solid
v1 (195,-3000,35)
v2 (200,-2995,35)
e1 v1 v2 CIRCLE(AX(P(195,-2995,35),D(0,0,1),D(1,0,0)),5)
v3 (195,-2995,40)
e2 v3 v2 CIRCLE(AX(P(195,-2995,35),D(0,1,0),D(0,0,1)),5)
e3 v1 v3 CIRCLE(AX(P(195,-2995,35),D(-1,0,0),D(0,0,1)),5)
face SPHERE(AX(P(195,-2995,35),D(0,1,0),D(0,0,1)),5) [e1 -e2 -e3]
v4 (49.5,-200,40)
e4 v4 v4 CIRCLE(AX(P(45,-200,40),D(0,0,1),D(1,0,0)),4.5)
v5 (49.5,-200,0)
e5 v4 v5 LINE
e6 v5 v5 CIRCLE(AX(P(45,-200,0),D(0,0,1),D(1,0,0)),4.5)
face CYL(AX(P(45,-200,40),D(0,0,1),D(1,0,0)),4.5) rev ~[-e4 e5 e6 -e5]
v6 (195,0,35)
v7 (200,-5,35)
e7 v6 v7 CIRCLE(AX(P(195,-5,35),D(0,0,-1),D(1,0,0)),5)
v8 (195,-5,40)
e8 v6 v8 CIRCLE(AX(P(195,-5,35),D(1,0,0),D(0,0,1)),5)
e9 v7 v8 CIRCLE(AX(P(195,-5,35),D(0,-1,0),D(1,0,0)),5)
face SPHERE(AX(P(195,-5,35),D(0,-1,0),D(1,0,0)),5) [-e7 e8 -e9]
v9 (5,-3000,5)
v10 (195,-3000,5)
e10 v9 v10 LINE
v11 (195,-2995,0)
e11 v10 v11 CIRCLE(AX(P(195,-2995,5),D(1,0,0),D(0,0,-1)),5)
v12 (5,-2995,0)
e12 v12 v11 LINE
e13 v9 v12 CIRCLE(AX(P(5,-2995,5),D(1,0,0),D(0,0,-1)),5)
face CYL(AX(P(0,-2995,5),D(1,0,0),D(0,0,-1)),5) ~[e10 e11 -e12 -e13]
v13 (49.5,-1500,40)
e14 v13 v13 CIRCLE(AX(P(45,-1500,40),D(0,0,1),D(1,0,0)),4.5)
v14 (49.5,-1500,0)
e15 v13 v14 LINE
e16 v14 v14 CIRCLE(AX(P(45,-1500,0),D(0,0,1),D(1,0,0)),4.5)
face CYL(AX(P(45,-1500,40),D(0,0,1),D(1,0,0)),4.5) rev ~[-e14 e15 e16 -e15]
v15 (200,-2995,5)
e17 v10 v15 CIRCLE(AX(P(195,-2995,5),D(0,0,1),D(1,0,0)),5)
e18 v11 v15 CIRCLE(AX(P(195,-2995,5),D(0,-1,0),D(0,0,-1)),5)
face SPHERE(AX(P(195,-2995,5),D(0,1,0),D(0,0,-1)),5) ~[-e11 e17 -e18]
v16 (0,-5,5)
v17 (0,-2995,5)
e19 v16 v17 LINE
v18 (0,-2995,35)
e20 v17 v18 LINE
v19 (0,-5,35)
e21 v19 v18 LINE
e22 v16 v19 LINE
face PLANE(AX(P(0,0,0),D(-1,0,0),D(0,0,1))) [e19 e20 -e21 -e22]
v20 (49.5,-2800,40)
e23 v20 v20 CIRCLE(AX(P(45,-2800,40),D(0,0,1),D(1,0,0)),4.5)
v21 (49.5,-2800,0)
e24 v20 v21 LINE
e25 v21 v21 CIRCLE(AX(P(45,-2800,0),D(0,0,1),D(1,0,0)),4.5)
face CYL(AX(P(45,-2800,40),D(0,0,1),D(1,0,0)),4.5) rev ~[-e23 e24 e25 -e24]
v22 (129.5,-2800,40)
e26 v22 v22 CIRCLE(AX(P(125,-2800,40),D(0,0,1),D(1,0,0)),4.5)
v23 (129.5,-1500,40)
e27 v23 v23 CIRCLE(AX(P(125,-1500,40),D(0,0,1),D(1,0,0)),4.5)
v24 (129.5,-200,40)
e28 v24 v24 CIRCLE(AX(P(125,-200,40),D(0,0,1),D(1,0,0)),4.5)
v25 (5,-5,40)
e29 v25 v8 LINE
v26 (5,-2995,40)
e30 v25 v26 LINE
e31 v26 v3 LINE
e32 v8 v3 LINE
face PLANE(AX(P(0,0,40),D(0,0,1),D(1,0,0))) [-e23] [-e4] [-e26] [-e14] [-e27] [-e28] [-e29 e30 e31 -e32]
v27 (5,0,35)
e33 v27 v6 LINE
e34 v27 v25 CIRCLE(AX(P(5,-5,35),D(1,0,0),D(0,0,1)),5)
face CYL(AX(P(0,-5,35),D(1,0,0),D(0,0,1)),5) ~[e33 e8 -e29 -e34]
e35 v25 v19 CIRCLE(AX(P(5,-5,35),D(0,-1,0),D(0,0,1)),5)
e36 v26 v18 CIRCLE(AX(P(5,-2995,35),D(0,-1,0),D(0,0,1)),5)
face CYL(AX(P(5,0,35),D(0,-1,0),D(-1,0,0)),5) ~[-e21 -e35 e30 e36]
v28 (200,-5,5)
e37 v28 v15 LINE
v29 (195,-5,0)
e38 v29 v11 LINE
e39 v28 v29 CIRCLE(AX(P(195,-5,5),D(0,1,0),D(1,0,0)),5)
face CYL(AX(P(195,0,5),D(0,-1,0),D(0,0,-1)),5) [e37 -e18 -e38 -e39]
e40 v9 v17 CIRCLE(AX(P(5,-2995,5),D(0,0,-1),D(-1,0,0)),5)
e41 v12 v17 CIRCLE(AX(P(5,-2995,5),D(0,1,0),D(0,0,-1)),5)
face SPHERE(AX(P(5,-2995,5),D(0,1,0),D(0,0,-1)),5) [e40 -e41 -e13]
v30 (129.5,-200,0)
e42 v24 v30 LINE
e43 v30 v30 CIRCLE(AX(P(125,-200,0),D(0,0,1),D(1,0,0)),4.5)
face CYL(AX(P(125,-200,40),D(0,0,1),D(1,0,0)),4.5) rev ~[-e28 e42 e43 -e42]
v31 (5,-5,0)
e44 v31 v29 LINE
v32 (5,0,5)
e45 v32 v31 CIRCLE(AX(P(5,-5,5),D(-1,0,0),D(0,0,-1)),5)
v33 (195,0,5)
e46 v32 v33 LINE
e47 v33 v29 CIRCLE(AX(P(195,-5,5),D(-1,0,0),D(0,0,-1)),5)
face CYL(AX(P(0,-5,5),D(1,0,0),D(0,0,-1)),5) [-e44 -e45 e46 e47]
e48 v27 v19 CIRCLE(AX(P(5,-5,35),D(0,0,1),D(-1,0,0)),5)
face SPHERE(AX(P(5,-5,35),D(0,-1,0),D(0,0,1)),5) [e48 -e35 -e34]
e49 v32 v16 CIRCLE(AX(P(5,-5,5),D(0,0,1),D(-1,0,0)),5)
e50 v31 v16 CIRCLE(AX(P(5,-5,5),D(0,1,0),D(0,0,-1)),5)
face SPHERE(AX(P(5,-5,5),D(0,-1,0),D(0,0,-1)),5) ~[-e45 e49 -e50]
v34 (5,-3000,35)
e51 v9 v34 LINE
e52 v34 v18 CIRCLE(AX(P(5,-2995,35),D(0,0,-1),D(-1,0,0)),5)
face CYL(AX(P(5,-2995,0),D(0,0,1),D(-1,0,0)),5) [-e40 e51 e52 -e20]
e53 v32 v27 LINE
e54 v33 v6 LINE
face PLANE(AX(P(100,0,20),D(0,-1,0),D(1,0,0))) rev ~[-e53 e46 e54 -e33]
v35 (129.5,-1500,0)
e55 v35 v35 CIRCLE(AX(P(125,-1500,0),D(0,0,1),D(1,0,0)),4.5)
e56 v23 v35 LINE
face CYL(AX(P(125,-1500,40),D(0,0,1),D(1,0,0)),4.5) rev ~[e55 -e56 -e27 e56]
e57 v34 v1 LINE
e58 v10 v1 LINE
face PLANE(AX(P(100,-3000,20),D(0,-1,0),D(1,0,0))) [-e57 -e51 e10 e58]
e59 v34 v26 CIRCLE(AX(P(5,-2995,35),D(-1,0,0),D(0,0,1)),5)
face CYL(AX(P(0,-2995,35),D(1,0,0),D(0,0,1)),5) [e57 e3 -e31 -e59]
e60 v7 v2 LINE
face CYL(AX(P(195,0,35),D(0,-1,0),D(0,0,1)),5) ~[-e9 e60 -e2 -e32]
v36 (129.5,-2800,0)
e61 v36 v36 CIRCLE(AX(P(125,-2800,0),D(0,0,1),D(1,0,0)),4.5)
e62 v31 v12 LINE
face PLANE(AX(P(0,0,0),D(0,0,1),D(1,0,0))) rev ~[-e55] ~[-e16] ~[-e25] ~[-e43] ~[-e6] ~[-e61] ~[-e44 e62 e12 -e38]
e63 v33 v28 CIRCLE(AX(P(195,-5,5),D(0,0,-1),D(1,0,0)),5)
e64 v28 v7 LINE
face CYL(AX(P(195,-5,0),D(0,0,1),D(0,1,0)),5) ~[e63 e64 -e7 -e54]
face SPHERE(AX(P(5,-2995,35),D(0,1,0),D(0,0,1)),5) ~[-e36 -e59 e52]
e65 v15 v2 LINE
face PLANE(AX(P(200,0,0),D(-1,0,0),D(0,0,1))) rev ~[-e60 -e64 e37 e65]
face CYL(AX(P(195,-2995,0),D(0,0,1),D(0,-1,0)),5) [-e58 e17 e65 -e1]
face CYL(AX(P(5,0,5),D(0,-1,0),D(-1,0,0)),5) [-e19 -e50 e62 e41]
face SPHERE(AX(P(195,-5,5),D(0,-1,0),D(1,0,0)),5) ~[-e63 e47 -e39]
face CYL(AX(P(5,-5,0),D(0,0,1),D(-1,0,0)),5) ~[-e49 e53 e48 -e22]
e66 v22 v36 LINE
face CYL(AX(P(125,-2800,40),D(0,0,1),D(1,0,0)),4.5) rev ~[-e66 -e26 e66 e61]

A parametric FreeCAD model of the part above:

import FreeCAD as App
import Part
import Sketcher


def edges_at(feature, points):
    """Names of the edges that pass closest to the given points."""
    edges = feature.Shape.Edges
    near = lambda p: min(range(len(edges)), key=lambda i: edges[i].distToShape(Part.Vertex(*p))[0])
    return sorted({f"Edge{near(p) + 1}" for p in points})

doc = App.newDocument("Part")
body = doc.addObject("PartDesign::Body", "Body")

sketch1 = body.newObject("Sketcher::SketchObject", "Sketch")
sketch1.AttachmentSupport = (doc.getObject("XZ_Plane"), [""])
sketch1.MapMode = "FlatFace"
sketch1.addGeometry(Part.LineSegment(App.Vector(0, 40, 0), App.Vector(0, 0, 0)), False)
sketch1.addGeometry(Part.LineSegment(App.Vector(0, 0, 0), App.Vector(200, 0, 0)), False)
sketch1.addGeometry(Part.LineSegment(App.Vector(200, 0, 0), App.Vector(200, 40, 0)), False)
sketch1.addGeometry(Part.LineSegment(App.Vector(200, 40, 0), App.Vector(0, 40, 0)), False)
sketch1.addConstraint(Sketcher.Constraint("Coincident", 0, 2, 1, 1))
sketch1.addConstraint(Sketcher.Constraint("Coincident", 1, 2, 2, 1))
sketch1.addConstraint(Sketcher.Constraint("Coincident", 2, 2, 3, 1))
sketch1.addConstraint(Sketcher.Constraint("Coincident", 3, 2, 0, 1))
sketch1.addConstraint(Sketcher.Constraint("Vertical", 0))
sketch1.addConstraint(Sketcher.Constraint("Horizontal", 1))
sketch1.addConstraint(Sketcher.Constraint("Vertical", 2))
sketch1.addConstraint(Sketcher.Constraint("Horizontal", 3))
sketch1.addConstraint(Sketcher.Constraint("Coincident", 0, 2, -1, 1))
sketch1.addConstraint(Sketcher.Constraint("DistanceX", 1, 1, 1, 2, 200.0))
sketch1.addConstraint(Sketcher.Constraint("DistanceY", 0, 2, 0, 1, 40.0))
pad1 = body.newObject("PartDesign::Pad", "Pad")
pad1.Profile = sketch1
pad1.Length = 3000

sketch2 = body.newObject("Sketcher::SketchObject", "Sketch001")
sketch2.AttachmentSupport = (doc.getObject("XY_Plane"), [""])
sketch2.MapMode = "FlatFace"
sketch2.AttachmentOffset = App.Placement(App.Vector(0, 0, 40), App.Rotation())
sketch2.addGeometry(Part.Circle(App.Vector(45, -2800, 0), App.Vector(0, 0, 1), 4.5), False)
sketch2.addGeometry(Part.Circle(App.Vector(125, -2800, 0), App.Vector(0, 0, 1), 4.5), False)
sketch2.addGeometry(Part.Circle(App.Vector(45, -200, 0), App.Vector(0, 0, 1), 4.5), False)
sketch2.addGeometry(Part.Circle(App.Vector(125, -200, 0), App.Vector(0, 0, 1), 4.5), False)
sketch2.addGeometry(Part.Circle(App.Vector(45, -1500, 0), App.Vector(0, 0, 1), 4.5), False)
sketch2.addGeometry(Part.Circle(App.Vector(125, -1500, 0), App.Vector(0, 0, 1), 4.5), False)
sketch2.addConstraint(Sketcher.Constraint("Equal", 0, 1))
sketch2.addConstraint(Sketcher.Constraint("Equal", 1, 2))
sketch2.addConstraint(Sketcher.Constraint("Equal", 2, 3))
sketch2.addConstraint(Sketcher.Constraint("Equal", 3, 4))
sketch2.addConstraint(Sketcher.Constraint("Equal", 4, 5))
sketch2.addConstraint(Sketcher.Constraint("Horizontal", 0, 3, 1, 3))
sketch2.addConstraint(Sketcher.Constraint("Horizontal", 2, 3, 3, 3))
sketch2.addConstraint(Sketcher.Constraint("Horizontal", 4, 3, 5, 3))
sketch2.addConstraint(Sketcher.Constraint("Vertical", 0, 3, 2, 3))
sketch2.addConstraint(Sketcher.Constraint("Vertical", 1, 3, 3, 3))
sketch2.addConstraint(Sketcher.Constraint("Vertical", 2, 3, 4, 3))
sketch2.addConstraint(Sketcher.Constraint("Vertical", 3, 3, 5, 3))
sketch2.addConstraint(Sketcher.Constraint("Diameter", 0, 9.0))
sketch2.addConstraint(Sketcher.Constraint("DistanceX", -1, 1, 0, 3, 45.0))
sketch2.addConstraint(Sketcher.Constraint("DistanceY", 0, 3, -1, 1, 2800.0))
sketch2.addConstraint(Sketcher.Constraint("DistanceX", -1, 1, 1, 3, 125.0))
sketch2.addConstraint(Sketcher.Constraint("DistanceY", 2, 3, -1, 1, 200.0))
sketch2.addConstraint(Sketcher.Constraint("DistanceY", 4, 3, -1, 1, 1500.0))
pocket1 = body.newObject("PartDesign::Pocket", "Pocket")
pocket1.Profile = sketch2
pocket1.Type = "ThroughAll"
doc.recompute()

fillet = body.newObject("PartDesign::Fillet", "Fillet")
fillet.Base = (pocket1, edges_at(pocket1, [
    (0, -1500, 40),
    (0, -1500, 0),
    (200, -1500, 40),
    (200, -1500, 0),
    (100, -3000, 40),
    (100, -3000, 0),
    (0, -3000, 20),
    (200, -3000, 20),
    (200, 0, 20),
    (100, 0, 40),
    (100, 0, 0),
    (0, 0, 20),
]))
fillet.Radius = 5

doc.recompute()
